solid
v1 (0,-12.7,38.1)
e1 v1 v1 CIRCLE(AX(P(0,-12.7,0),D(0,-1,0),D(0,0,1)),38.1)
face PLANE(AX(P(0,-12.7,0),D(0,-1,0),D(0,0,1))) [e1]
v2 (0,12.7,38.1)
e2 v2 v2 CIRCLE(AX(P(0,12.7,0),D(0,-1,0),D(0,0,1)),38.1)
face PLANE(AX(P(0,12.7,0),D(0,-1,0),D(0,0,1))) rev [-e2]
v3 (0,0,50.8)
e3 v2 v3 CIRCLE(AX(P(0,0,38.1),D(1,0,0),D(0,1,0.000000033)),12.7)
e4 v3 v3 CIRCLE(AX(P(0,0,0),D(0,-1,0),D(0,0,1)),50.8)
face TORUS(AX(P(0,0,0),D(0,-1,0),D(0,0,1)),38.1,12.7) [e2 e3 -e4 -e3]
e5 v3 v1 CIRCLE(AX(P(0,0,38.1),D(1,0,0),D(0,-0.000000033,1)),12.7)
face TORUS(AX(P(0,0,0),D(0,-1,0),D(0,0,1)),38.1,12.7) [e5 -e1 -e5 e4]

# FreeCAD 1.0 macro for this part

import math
import FreeCAD as App
import Part
import Sketcher

V = App.Vector
Q = App.Units.Quantity

doc = App.newDocument("Part")
params = doc.addObject("Spreadsheet::Sheet", "Params")
for row, (alias, value) in enumerate([
    ("sketch1_radius", "0.5 in"),
    ("sketch1_height", "1.5 in"),
    ("revolution_angle", "360 deg"),
], start=1):
    params.set(f"A{row}", alias)
    params.set(f"B{row}", "=" + value)
    params.setAlias(f"B{row}", alias)

body = doc.addObject("PartDesign::Body", "Body")

sketch1 = body.newObject("Sketcher::SketchObject", "Sketch")
sketch1.AttachmentSupport = (doc.getObject("YZ_Plane"), [""])
sketch1.MapMode = "FlatFace"
sketch1.addGeometry(Part.LineSegment(V(-13, 0, 0), V(13, 0, 0)), False)
sketch1.addGeometry(Part.LineSegment(V(13, 0, 0), V(13, 38, 0)), False)
sketch1.addGeometry(Part.ArcOfCircle(Part.Circle(V(0, 38, 0), V(0, 0, 1), 13), math.radians(0), math.radians(90)), False)
sketch1.addGeometry(Part.ArcOfCircle(Part.Circle(V(0, 38, 0), V(0, 0, 1), 13), math.radians(90), math.radians(180)), False)
sketch1.addGeometry(Part.LineSegment(V(-13, 38, 0), V(-13, 0, 0)), False)
sketch1.addConstraint(Sketcher.Constraint("Coincident", 0, 2, 1, 1))
sketch1.addConstraint(Sketcher.Constraint("Tangent", 1, 2, 2, 1))
sketch1.addConstraint(Sketcher.Constraint("Tangent", 2, 2, 3, 1))
sketch1.addConstraint(Sketcher.Constraint("Tangent", 3, 2, 4, 1))
sketch1.addConstraint(Sketcher.Constraint("Coincident", 4, 2, 0, 1))
sketch1.addConstraint(Sketcher.Constraint("Horizontal", 0))
sketch1.addConstraint(Sketcher.Constraint("Vertical", 1))
sketch1.addConstraint(Sketcher.Constraint("Vertical", 4))
sketch1.addConstraint(Sketcher.Constraint("Equal", 2, 3))
sketch1.addConstraint(Sketcher.Constraint("Symmetric", 0, 2, 4, 2, -1, 1))
sketch1.addConstraint(Sketcher.Constraint("PointOnObject", 2, 2, -2))
sketch1.addConstraint(Sketcher.Constraint("Radius", 2, Q("0.5 in")))
sketch1.addConstraint(Sketcher.Constraint("DistanceY", 1, 1, 1, 2, Q("1.5 in")))
sketch1.setExpression("Constraints[11]", "Params.sketch1_radius")
sketch1.setExpression("Constraints[12]", "Params.sketch1_height")
revolution = body.newObject("PartDesign::Revolution", "Revolution")
revolution.Profile = sketch1
revolution.ReferenceAxis = (sketch1, ["H_Axis"])
revolution.setExpression("Angle", "Params.revolution_angle")

doc.recompute()
